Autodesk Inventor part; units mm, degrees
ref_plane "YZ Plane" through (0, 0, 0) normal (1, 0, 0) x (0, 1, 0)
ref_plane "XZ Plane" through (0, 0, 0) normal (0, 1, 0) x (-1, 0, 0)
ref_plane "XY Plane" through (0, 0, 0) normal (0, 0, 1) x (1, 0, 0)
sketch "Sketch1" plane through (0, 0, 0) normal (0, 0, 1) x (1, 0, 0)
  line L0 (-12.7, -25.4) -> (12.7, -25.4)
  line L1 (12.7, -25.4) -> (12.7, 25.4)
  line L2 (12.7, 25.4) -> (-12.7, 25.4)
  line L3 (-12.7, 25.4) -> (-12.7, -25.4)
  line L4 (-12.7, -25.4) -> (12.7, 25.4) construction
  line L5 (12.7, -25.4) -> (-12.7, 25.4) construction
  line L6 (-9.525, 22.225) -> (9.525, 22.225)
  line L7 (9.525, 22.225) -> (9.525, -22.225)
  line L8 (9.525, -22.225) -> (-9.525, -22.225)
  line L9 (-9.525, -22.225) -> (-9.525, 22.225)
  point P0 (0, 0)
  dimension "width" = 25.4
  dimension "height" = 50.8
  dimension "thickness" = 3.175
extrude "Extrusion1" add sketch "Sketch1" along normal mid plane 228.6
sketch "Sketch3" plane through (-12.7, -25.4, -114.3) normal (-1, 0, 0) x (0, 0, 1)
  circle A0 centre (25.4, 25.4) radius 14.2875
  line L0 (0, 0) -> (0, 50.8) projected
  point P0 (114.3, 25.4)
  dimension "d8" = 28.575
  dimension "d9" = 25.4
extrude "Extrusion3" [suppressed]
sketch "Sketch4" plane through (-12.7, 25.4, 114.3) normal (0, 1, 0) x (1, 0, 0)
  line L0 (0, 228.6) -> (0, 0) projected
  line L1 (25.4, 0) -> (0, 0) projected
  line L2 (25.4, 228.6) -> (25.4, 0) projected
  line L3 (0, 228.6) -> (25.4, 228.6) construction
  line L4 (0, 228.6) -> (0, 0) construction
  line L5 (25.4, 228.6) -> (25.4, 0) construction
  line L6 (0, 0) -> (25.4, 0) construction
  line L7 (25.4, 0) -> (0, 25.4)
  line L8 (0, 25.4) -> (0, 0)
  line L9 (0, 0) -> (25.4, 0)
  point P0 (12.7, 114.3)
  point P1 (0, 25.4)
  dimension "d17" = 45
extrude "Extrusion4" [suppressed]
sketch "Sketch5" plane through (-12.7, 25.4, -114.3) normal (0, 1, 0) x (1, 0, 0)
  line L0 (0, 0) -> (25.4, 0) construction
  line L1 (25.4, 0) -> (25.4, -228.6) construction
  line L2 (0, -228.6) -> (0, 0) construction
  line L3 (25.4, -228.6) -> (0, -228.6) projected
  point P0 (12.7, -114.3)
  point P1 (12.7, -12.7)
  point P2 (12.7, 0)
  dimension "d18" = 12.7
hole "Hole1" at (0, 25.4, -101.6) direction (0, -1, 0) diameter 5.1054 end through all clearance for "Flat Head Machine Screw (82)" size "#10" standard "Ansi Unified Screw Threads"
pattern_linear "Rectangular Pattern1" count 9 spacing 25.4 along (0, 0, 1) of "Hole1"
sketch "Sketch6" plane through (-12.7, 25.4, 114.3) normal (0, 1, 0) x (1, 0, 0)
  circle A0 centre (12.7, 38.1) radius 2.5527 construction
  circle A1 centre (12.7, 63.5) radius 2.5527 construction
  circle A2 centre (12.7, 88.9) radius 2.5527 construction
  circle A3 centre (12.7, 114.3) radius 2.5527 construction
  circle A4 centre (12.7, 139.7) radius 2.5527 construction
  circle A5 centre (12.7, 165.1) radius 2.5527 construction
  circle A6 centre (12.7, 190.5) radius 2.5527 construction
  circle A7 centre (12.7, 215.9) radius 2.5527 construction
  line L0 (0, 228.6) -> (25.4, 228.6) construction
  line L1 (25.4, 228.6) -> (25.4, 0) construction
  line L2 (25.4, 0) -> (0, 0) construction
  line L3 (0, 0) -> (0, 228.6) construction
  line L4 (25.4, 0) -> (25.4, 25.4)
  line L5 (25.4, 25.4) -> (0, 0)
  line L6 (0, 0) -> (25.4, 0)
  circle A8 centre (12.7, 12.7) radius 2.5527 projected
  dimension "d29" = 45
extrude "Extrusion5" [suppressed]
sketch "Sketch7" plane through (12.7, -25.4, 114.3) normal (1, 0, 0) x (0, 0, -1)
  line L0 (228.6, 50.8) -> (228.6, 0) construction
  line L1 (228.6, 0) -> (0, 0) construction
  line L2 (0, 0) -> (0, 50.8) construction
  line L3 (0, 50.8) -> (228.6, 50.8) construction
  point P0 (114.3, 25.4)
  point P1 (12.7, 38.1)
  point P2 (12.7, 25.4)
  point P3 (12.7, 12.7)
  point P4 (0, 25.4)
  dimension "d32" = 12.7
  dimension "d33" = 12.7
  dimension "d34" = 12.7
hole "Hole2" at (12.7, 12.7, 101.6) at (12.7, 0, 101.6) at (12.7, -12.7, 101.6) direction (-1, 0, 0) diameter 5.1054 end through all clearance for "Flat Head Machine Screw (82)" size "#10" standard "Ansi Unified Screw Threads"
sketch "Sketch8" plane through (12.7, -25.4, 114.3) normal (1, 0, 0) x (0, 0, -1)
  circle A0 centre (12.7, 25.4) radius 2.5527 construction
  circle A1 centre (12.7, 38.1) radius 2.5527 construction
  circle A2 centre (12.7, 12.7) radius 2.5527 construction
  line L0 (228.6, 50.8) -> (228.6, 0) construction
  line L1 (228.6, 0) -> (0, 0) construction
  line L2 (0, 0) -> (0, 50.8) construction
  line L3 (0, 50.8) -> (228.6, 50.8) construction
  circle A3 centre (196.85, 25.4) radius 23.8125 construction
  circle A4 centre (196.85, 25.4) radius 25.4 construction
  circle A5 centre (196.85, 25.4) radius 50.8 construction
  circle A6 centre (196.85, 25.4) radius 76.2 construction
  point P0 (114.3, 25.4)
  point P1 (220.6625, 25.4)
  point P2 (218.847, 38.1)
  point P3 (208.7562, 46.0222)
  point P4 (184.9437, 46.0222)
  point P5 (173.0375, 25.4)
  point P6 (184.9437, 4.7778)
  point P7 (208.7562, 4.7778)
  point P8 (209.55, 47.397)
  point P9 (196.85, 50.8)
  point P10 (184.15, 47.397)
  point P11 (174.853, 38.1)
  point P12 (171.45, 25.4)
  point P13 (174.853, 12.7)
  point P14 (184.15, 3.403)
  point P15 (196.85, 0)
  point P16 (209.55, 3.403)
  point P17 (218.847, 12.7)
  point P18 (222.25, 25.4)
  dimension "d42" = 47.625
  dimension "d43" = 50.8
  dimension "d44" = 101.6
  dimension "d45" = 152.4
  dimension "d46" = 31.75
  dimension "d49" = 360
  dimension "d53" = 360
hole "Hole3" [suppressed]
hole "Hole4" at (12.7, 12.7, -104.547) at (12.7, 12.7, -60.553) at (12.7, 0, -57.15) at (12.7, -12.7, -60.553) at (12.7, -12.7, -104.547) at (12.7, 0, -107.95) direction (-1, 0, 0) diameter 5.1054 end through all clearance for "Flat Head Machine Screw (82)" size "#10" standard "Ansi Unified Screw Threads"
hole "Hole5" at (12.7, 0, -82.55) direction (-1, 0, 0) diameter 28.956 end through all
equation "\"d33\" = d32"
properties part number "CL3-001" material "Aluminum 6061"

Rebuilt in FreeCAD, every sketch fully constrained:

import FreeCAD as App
import Part
import Sketcher

V = App.Vector
Q = App.Units.Quantity

doc = App.newDocument("Part")
params = doc.addObject("Spreadsheet::Sheet", "Params")
for row, (alias, value) in enumerate([
    ("sketch1_width", "1 in"),
    ("sketch1_height", "2 in"),
    ("pad1_length", "9 in"),
    ("sketch2_diameter", "0.201 in"),
    ("hole_diameter", "0.201 in"),
    ("linearpattern_pitch", "1 in"),
    ("sketch3_diameter", "0.201 in"),
    ("hole2_diameter", "0.201 in"),
    ("sketch4_diameter", "0.201 in"),
    ("hole3_diameter", "0.201 in"),
    ("sketch5_diameter", "1.14 in"),
    ("hole4_diameter", "1.14 in"),
], start=1):
    params.set(f"A{row}", alias)
    params.set(f"B{row}", "=" + value)
    params.setAlias(f"B{row}", alias)

body = doc.addObject("PartDesign::Body", "Body")

# Sketch on XY plane
sketch1 = doc.addObject("Sketcher::SketchObject", "Sketch")
body.addObject(sketch1)
sketch1.AttachmentSupport = (doc.XY_Plane, [""])
sketch1.MapMode = "FlatFace"
sketch1.addGeometry(Part.LineSegment(V(-13, 25, 0), V(-13, -25, 0)), False)
sketch1.addGeometry(Part.LineSegment(V(-13, -25, 0), V(13, -25, 0)), False)
sketch1.addGeometry(Part.LineSegment(V(13, -25, 0), V(13, 25, 0)), False)
sketch1.addGeometry(Part.LineSegment(V(13, 25, 0), V(-13, 25, 0)), False)
sketch1.addGeometry(Part.LineSegment(V(-10, -22, 0), V(-10, 22, 0)), False)
sketch1.addGeometry(Part.LineSegment(V(-10, 22, 0), V(10, 22, 0)), False)
sketch1.addGeometry(Part.LineSegment(V(10, 22, 0), V(10, -22, 0)), False)
sketch1.addGeometry(Part.LineSegment(V(10, -22, 0), V(-10, -22, 0)), False)
sketch1.addConstraint(Sketcher.Constraint("Coincident", 0, 2, 1, 1))
sketch1.addConstraint(Sketcher.Constraint("Coincident", 1, 2, 2, 1))
sketch1.addConstraint(Sketcher.Constraint("Coincident", 2, 2, 3, 1))
sketch1.addConstraint(Sketcher.Constraint("Coincident", 3, 2, 0, 1))
sketch1.addConstraint(Sketcher.Constraint("Coincident", 4, 2, 5, 1))
sketch1.addConstraint(Sketcher.Constraint("Coincident", 5, 2, 6, 1))
sketch1.addConstraint(Sketcher.Constraint("Coincident", 6, 2, 7, 1))
sketch1.addConstraint(Sketcher.Constraint("Coincident", 7, 2, 4, 1))
sketch1.addConstraint(Sketcher.Constraint("Vertical", 0))
sketch1.addConstraint(Sketcher.Constraint("Horizontal", 1))
sketch1.addConstraint(Sketcher.Constraint("Vertical", 2))
sketch1.addConstraint(Sketcher.Constraint("Horizontal", 3))
sketch1.addConstraint(Sketcher.Constraint("Vertical", 4))
sketch1.addConstraint(Sketcher.Constraint("Horizontal", 5))
sketch1.addConstraint(Sketcher.Constraint("Vertical", 6))
sketch1.addConstraint(Sketcher.Constraint("Horizontal", 7))
sketch1.addConstraint(Sketcher.Constraint("Symmetric", 0, 2, 2, 2, -1, 1))
sketch1.addConstraint(Sketcher.Constraint("Symmetric", 4, 2, 6, 2, -1, 1))
sketch1.addConstraint(Sketcher.Constraint("DistanceX", 1, 1, 1, 2, Q("1 in")))
sketch1.addConstraint(Sketcher.Constraint("DistanceY", 0, 2, 0, 1, Q("2 in")))
sketch1.addConstraint(Sketcher.Constraint("DistanceX", 3, 2, 4, 2, Q("0.125 in")))
sketch1.addConstraint(Sketcher.Constraint("DistanceY", 4, 2, 3, 2, Q("0.125 in")))
sketch1.setExpression("Constraints[18]", "Params.sketch1_width")
sketch1.setExpression("Constraints[19]", "Params.sketch1_height")
pad1 = doc.addObject("PartDesign::Pad", "Pad")
body.addObject(pad1)
pad1.Profile = sketch1
pad1.setExpression("Length", "Params.pad1_length")
pad1.Midplane = True

# Sketch on XZ plane
sketch2 = doc.addObject("Sketcher::SketchObject", "Sketch001")
body.addObject(sketch2)
sketch2.AttachmentSupport = (doc.XZ_Plane, [""])
sketch2.MapMode = "FlatFace"
sketch2.AttachmentOffset = App.Placement(V(0, 0, -1 * 25.4), App.Rotation())
sketch2.addGeometry(Part.Circle(V(0, -101.6, 0), V(0, 0, 1), 2.6), False)
sketch2.addConstraint(Sketcher.Constraint("PointOnObject", 0, 3, -2))
sketch2.addConstraint(Sketcher.Constraint("Diameter", 0, Q("0.201 in")))
sketch2.addConstraint(Sketcher.Constraint("DistanceY", 0, 3, -1, 1, Q("4 in")))
sketch2.setExpression("Constraints[1]", "Params.sketch2_diameter")
doc.recompute()
hole = doc.addObject("PartDesign::Hole", "Hole")
body.addObject(hole)
hole.Profile = sketch2
hole.ThreadType = "None"
hole.setExpression("Diameter", "Params.hole_diameter")
hole.DepthType = "ThroughAll"
hole.Reversed = True
doc.recompute()

linearpattern = doc.addObject("PartDesign::LinearPattern", "LinearPattern")
body.addObject(linearpattern)
linearpattern.Originals = [hole]
linearpattern.Direction = (doc.Z_Axis, [""])
linearpattern.Mode = "offset"
linearpattern.setExpression("Offset", "Params.linearpattern_pitch")
linearpattern.Occurrences = 9
body.Tip = linearpattern

# Sketch on YZ plane
sketch3 = doc.addObject("Sketcher::SketchObject", "Sketch002")
body.addObject(sketch3)
sketch3.AttachmentSupport = (doc.YZ_Plane, [""])
sketch3.MapMode = "FlatFace"
sketch3.AttachmentOffset = App.Placement(V(0, 0, 0.5 * 25.4), App.Rotation())
sketch3.addGeometry(Part.Circle(V(12.7, 101.6, 0), V(0, 0, 1), 2.6), False)
sketch3.addGeometry(Part.Circle(V(0, 101.6, 0), V(0, 0, 1), 2.6), False)
sketch3.addGeometry(Part.Circle(V(-12.7, 101.6, 0), V(0, 0, 1), 2.6), False)
sketch3.addConstraint(Sketcher.Constraint("Equal", 0, 1))
sketch3.addConstraint(Sketcher.Constraint("Equal", 1, 2))
sketch3.addConstraint(Sketcher.Constraint("Symmetric", 0, 3, 2, 3, -2))
sketch3.addConstraint(Sketcher.Constraint("PointOnObject", 1, 3, -2))
sketch3.addConstraint(Sketcher.Constraint("Horizontal", 0, 3, 1, 3))
sketch3.addConstraint(Sketcher.Constraint("Diameter", 0, Q("0.201 in")))
sketch3.addConstraint(Sketcher.Constraint("DistanceY", -1, 1, 0, 3, Q("4 in")))
sketch3.addConstraint(Sketcher.Constraint("DistanceX", 2, 3, 0, 3, Q("1 in")))
sketch3.setExpression("Constraints[5]", "Params.sketch3_diameter")
doc.recompute()
hole2 = doc.addObject("PartDesign::Hole", "Hole001")
body.addObject(hole2)
hole2.Profile = sketch3
hole2.ThreadType = "None"
hole2.setExpression("Diameter", "Params.hole2_diameter")
hole2.DepthType = "ThroughAll"

# Sketch on YZ plane
sketch4 = doc.addObject("Sketcher::SketchObject", "Sketch003")
body.addObject(sketch4)
sketch4.AttachmentSupport = (doc.YZ_Plane, [""])
sketch4.MapMode = "FlatFace"
sketch4.AttachmentOffset = App.Placement(V(0, 0, 0.5 * 25.4), App.Rotation())
sketch4.addGeometry(Part.Circle(V(12.7, -104.5, 0), V(0, 0, 1), 2.6), False)
sketch4.addGeometry(Part.Circle(V(12.7, -60.6, 0), V(0, 0, 1), 2.6), False)
sketch4.addGeometry(Part.Circle(V(0, -57.1, 0), V(0, 0, 1), 2.6), False)
sketch4.addGeometry(Part.Circle(V(-12.7, -60.6, 0), V(0, 0, 1), 2.6), False)
sketch4.addGeometry(Part.Circle(V(-12.7, -104.5, 0), V(0, 0, 1), 2.6), False)
sketch4.addGeometry(Part.Circle(V(0, -108, 0), V(0, 0, 1), 2.6), False)
sketch4.addConstraint(Sketcher.Constraint("Equal", 0, 1))
sketch4.addConstraint(Sketcher.Constraint("Equal", 1, 2))
sketch4.addConstraint(Sketcher.Constraint("Equal", 2, 3))
sketch4.addConstraint(Sketcher.Constraint("Equal", 3, 4))
sketch4.addConstraint(Sketcher.Constraint("Equal", 4, 5))
sketch4.addConstraint(Sketcher.Constraint("Symmetric", 1, 3, 3, 3, -2))
sketch4.addConstraint(Sketcher.Constraint("Symmetric", 0, 3, 4, 3, -2))
sketch4.addConstraint(Sketcher.Constraint("PointOnObject", 2, 3, -2))
sketch4.addConstraint(Sketcher.Constraint("PointOnObject", 5, 3, -2))
sketch4.addConstraint(Sketcher.Constraint("Vertical", 0, 3, 1, 3))
sketch4.addConstraint(Sketcher.Constraint("Diameter", 0, Q("0.201 in")))
sketch4.addConstraint(Sketcher.Constraint("DistanceX", 3, 3, 1, 3, Q("1 in")))
sketch4.addConstraint(Sketcher.Constraint("DistanceY", 5, 3, 2, 3, Q("2 in")))
sketch4.addConstraint(Sketcher.Constraint("DistanceY", 2, 3, -1, 1, Q("2.25 in")))
sketch4.addConstraint(Sketcher.Constraint("DistanceY", 0, 3, -1, 1, 104.547))
sketch4.addConstraint(Sketcher.Constraint("DistanceY", 1, 3, -1, 1, 60.553))
sketch4.setExpression("Constraints[10]", "Params.sketch4_diameter")
doc.recompute()
hole3 = doc.addObject("PartDesign::Hole", "Hole002")
body.addObject(hole3)
hole3.Profile = sketch4
hole3.ThreadType = "None"
hole3.setExpression("Diameter", "Params.hole3_diameter")
hole3.DepthType = "ThroughAll"

# Sketch on YZ plane
sketch5 = doc.addObject("Sketcher::SketchObject", "Sketch004")
body.addObject(sketch5)
sketch5.AttachmentSupport = (doc.YZ_Plane, [""])
sketch5.MapMode = "FlatFace"
sketch5.AttachmentOffset = App.Placement(V(0, 0, 0.5 * 25.4), App.Rotation())
sketch5.addGeometry(Part.Circle(V(0, -83, 0), V(0, 0, 1), 14), False)
sketch5.addConstraint(Sketcher.Constraint("PointOnObject", 0, 3, -2))
sketch5.addConstraint(Sketcher.Constraint("Diameter", 0, Q("1.14 in")))
sketch5.addConstraint(Sketcher.Constraint("DistanceY", 0, 3, -1, 1, Q("3.25 in")))
sketch5.setExpression("Constraints[1]", "Params.sketch5_diameter")
doc.recompute()
hole4 = doc.addObject("PartDesign::Hole", "Hole003")
body.addObject(hole4)
hole4.Profile = sketch5
hole4.ThreadType = "None"
hole4.setExpression("Diameter", "Params.hole4_diameter")
hole4.DepthType = "ThroughAll"

doc.recompute()
